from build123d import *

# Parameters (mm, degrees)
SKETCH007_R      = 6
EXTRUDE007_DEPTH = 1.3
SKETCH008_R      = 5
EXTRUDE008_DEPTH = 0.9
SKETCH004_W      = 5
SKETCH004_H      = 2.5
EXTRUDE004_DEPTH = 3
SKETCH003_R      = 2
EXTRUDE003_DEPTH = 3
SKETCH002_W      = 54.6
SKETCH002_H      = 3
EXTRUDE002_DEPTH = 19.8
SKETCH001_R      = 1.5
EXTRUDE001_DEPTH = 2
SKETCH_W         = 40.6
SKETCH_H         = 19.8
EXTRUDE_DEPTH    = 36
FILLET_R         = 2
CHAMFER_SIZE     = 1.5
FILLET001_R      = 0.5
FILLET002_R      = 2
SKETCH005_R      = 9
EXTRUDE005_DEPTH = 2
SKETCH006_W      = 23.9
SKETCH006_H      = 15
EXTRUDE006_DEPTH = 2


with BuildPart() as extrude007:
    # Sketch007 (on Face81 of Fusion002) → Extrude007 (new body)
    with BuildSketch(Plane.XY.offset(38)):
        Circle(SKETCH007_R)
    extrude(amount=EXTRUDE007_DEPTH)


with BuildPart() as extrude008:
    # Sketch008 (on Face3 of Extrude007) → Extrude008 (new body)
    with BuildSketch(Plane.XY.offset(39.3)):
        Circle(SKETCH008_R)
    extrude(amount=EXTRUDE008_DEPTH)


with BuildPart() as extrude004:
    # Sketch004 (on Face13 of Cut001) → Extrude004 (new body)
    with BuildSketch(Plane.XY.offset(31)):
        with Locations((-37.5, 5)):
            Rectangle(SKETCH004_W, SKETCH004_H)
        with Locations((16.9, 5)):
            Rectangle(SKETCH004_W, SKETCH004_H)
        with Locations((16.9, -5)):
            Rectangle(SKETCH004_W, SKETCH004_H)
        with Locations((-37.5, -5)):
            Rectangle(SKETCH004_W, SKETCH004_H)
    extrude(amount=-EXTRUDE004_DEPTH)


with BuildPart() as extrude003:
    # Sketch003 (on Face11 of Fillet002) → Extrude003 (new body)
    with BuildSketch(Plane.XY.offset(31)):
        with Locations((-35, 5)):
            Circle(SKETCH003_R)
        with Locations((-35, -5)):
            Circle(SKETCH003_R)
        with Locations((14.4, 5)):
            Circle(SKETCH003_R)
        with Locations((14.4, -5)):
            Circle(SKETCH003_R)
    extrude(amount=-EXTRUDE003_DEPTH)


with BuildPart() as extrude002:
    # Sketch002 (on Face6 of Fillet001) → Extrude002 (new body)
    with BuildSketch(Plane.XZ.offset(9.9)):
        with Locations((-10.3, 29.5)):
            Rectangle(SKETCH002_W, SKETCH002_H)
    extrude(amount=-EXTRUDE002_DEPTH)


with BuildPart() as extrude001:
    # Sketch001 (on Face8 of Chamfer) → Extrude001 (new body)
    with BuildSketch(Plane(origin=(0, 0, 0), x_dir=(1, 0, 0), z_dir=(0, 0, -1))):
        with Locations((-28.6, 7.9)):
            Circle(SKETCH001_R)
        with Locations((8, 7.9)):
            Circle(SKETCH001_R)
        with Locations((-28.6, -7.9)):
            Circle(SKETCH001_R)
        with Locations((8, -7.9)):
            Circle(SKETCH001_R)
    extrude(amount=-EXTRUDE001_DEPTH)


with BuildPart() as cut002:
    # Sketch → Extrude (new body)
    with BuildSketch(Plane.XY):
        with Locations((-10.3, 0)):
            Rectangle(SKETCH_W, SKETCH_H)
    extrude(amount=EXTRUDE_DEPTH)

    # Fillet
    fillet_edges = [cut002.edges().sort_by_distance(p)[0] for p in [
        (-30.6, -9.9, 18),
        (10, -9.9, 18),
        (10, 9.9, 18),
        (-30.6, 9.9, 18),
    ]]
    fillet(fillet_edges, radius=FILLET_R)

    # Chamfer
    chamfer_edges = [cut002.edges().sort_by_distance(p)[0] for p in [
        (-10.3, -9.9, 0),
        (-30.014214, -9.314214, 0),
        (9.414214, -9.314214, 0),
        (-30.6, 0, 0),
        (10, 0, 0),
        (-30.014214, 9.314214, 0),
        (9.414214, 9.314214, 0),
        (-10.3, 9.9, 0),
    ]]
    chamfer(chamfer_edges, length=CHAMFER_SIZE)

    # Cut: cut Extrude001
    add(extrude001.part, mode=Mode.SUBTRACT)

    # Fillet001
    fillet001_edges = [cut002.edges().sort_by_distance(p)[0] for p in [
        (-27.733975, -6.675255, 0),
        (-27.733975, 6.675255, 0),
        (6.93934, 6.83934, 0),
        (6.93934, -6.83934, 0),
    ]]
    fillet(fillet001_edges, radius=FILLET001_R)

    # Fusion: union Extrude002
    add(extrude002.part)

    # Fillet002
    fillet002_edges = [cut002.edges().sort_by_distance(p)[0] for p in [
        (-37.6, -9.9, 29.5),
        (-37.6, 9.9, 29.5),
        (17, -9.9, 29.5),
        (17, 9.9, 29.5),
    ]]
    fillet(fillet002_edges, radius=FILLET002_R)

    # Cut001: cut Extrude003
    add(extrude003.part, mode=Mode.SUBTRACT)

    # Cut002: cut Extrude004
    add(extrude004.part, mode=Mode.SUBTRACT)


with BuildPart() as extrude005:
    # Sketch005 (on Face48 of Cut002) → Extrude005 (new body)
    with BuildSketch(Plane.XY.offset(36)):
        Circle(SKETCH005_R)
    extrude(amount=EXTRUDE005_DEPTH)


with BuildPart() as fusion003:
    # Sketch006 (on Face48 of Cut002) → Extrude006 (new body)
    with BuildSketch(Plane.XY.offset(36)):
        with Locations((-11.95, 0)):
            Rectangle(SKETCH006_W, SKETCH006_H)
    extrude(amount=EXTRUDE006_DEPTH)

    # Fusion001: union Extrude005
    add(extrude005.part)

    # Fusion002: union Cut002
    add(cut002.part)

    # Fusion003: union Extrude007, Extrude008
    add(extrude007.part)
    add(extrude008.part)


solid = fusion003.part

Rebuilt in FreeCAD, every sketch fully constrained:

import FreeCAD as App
import Part
import Sketcher


def edges_at(feature, points):
    """Names of the edges that pass closest to the given points."""
    edges = feature.Shape.Edges
    near = lambda p: min(range(len(edges)), key=lambda i: edges[i].distToShape(Part.Vertex(*p))[0])
    return sorted({f"Edge{near(p) + 1}" for p in points})

doc = App.newDocument("Part")
params = doc.addObject("Spreadsheet::Sheet", "Params")
for row, (alias, value) in enumerate([
    ("sketch1_diameter", "12 mm"),
    ("pad1_length", "1.3 mm"),
    ("sketch2_diameter", "10 mm"),
    ("pad2_length", "0.9 mm"),
    ("sketch3_width", "5 mm"),
    ("sketch3_height", "2.5 mm"),
    ("pad3_length", "3 mm"),
    ("sketch4_diameter", "4 mm"),
    ("pad4_length", "3 mm"),
    ("sketch5_height", "3 mm"),
    ("sketch5_width", "54.6 mm"),
    ("pad5_length", "19.8 mm"),
    ("sketch6_diameter", "3 mm"),
    ("pad6_length", "2 mm"),
    ("sketch7_width", "40.6 mm"),
    ("sketch7_height", "19.8 mm"),
    ("pad7_length", "36 mm"),
    ("fillet_radius", "2 mm"),
    ("chamfer_size", "1.5 mm"),
    ("fillet2_radius", "0.5 mm"),
    ("fillet3_radius", "2 mm"),
    ("sketch8_diameter", "18 mm"),
    ("pad8_length", "2 mm"),
    ("sketch9_height", "15 mm"),
    ("sketch9_width", "23.9 mm"),
    ("pad9_length", "2 mm"),
], start=1):
    params.set(f"A{row}", alias)
    params.set(f"B{row}", "=" + value)
    params.setAlias(f"B{row}", alias)

body = doc.addObject("PartDesign::Body", "Body")

sketch1 = doc.addObject("Sketcher::SketchObject", "Sketch")
body.addObject(sketch1)
sketch1.AttachmentSupport = (doc.XY_Plane, [""])
sketch1.MapMode = "FlatFace"
sketch1.AttachmentOffset = App.Placement(App.Vector(0, 0, 38), App.Rotation())
sketch1.addGeometry(Part.Circle(App.Vector(0, 0, 0), App.Vector(0, 0, 1), 6), False)
sketch1.addConstraint([
    Sketcher.Constraint("Coincident", 0, 3, -1, 1),
    Sketcher.Constraint("Diameter", 0, 12.0),
])
sketch1.setExpression("Constraints[1]", "Params.sketch1_diameter")
pad1 = doc.addObject("PartDesign::Pad", "Pad")
body.addObject(pad1)
pad1.Profile = sketch1
pad1.setExpression("Length", "Params.pad1_length")
body2 = doc.addObject("PartDesign::Body", "Body001")

sketch2 = doc.addObject("Sketcher::SketchObject", "Sketch001")
body2.addObject(sketch2)
sketch2.AttachmentSupport = (doc.getObject("XY_Plane001"), [""])
sketch2.MapMode = "FlatFace"
sketch2.AttachmentOffset = App.Placement(App.Vector(0, 0, 39.3), App.Rotation())
sketch2.addGeometry(Part.Circle(App.Vector(0, 0, 0), App.Vector(0, 0, 1), 5), False)
sketch2.addConstraint([
    Sketcher.Constraint("Coincident", 0, 3, -1, 1),
    Sketcher.Constraint("Diameter", 0, 10.0),
])
sketch2.setExpression("Constraints[1]", "Params.sketch2_diameter")
pad2 = doc.addObject("PartDesign::Pad", "Pad001")
body2.addObject(pad2)
pad2.Profile = sketch2
pad2.setExpression("Length", "Params.pad2_length")
body3 = doc.addObject("PartDesign::Body", "Body002")
body3.AllowCompound = True

sketch3 = doc.addObject("Sketcher::SketchObject", "Sketch002")
body3.addObject(sketch3)
sketch3.AttachmentSupport = (doc.getObject("XY_Plane002"), [""])
sketch3.MapMode = "FlatFace"
sketch3.AttachmentOffset = App.Placement(App.Vector(0, 0, 31), App.Rotation())
sketch3.addGeometry([
    Part.LineSegment(App.Vector(-40, 6.25, 0), App.Vector(-40, 3.75, 0)),
    Part.LineSegment(App.Vector(-40, 3.75, 0), App.Vector(-35, 3.75, 0)),
    Part.LineSegment(App.Vector(-35, 3.75, 0), App.Vector(-35, 6.25, 0)),
    Part.LineSegment(App.Vector(-35, 6.25, 0), App.Vector(-40, 6.25, 0)),
    Part.LineSegment(App.Vector(14.4, 6.25, 0), App.Vector(14.4, 3.75, 0)),
    Part.LineSegment(App.Vector(14.4, 3.75, 0), App.Vector(19.4, 3.75, 0)),
    Part.LineSegment(App.Vector(19.4, 3.75, 0), App.Vector(19.4, 6.25, 0)),
    Part.LineSegment(App.Vector(19.4, 6.25, 0), App.Vector(14.4, 6.25, 0)),
    Part.LineSegment(App.Vector(14.4, -3.75, 0), App.Vector(14.4, -6.25, 0)),
    Part.LineSegment(App.Vector(14.4, -6.25, 0), App.Vector(19.4, -6.25, 0)),
    Part.LineSegment(App.Vector(19.4, -6.25, 0), App.Vector(19.4, -3.75, 0)),
    Part.LineSegment(App.Vector(19.4, -3.75, 0), App.Vector(14.4, -3.75, 0)),
    Part.LineSegment(App.Vector(-40, -3.75, 0), App.Vector(-40, -6.25, 0)),
    Part.LineSegment(App.Vector(-40, -6.25, 0), App.Vector(-35, -6.25, 0)),
    Part.LineSegment(App.Vector(-35, -6.25, 0), App.Vector(-35, -3.75, 0)),
    Part.LineSegment(App.Vector(-35, -3.75, 0), App.Vector(-40, -3.75, 0)),
], False)
sketch3.addConstraint([
    Sketcher.Constraint("Coincident", 0, 2, 1, 1),
    Sketcher.Constraint("Coincident", 1, 2, 2, 1),
    Sketcher.Constraint("Coincident", 2, 2, 3, 1),
    Sketcher.Constraint("Coincident", 3, 2, 0, 1),
    Sketcher.Constraint("Coincident", 4, 2, 5, 1),
    Sketcher.Constraint("Coincident", 5, 2, 6, 1),
    Sketcher.Constraint("Coincident", 6, 2, 7, 1),
    Sketcher.Constraint("Coincident", 7, 2, 4, 1),
    Sketcher.Constraint("Coincident", 8, 2, 9, 1),
    Sketcher.Constraint("Coincident", 9, 2, 10, 1),
    Sketcher.Constraint("Coincident", 10, 2, 11, 1),
    Sketcher.Constraint("Coincident", 11, 2, 8, 1),
    Sketcher.Constraint("Coincident", 12, 2, 13, 1),
    Sketcher.Constraint("Coincident", 13, 2, 14, 1),
    Sketcher.Constraint("Coincident", 14, 2, 15, 1),
    Sketcher.Constraint("Coincident", 15, 2, 12, 1),
    Sketcher.Constraint("Vertical", 0),
    Sketcher.Constraint("Horizontal", 1),
    Sketcher.Constraint("Vertical", 2),
    Sketcher.Constraint("Horizontal", 3),
    Sketcher.Constraint("Vertical", 4),
    Sketcher.Constraint("Horizontal", 5),
    Sketcher.Constraint("Vertical", 6),
    Sketcher.Constraint("Horizontal", 7),
    Sketcher.Constraint("Vertical", 8),
    Sketcher.Constraint("Horizontal", 9),
    Sketcher.Constraint("Vertical", 10),
    Sketcher.Constraint("Horizontal", 11),
    Sketcher.Constraint("Vertical", 12),
    Sketcher.Constraint("Horizontal", 13),
    Sketcher.Constraint("Vertical", 14),
    Sketcher.Constraint("Horizontal", 15),
    Sketcher.Constraint("Symmetric", 7, 2, 8, 2, -1),
    Sketcher.Constraint("Symmetric", 5, 2, 10, 2, -1),
    Sketcher.Constraint("Symmetric", 3, 2, 12, 2, -1),
    Sketcher.Constraint("Symmetric", 1, 2, 14, 2, -1),
    Sketcher.Constraint("Horizontal", 1, 2, 4, 2),
    Sketcher.Constraint("Horizontal", 3, 2, 6, 2),
    Sketcher.Constraint("Equal", 3, 5),
    Sketcher.Constraint("DistanceX", 1, 1, 1, 2, 5.0),
    Sketcher.Constraint("DistanceY", 0, 2, 0, 1, 2.5),
    Sketcher.Constraint("DistanceX", 0, 2, -1, 1, 40.0),
    Sketcher.Constraint("DistanceY", 8, 2, 4, 2, 10.0),
    Sketcher.Constraint("DistanceX", -1, 1, 4, 2, 14.4),
])
sketch3.setExpression("Constraints[39]", "Params.sketch3_width")
sketch3.setExpression("Constraints[40]", "Params.sketch3_height")
pad3 = doc.addObject("PartDesign::Pad", "Pad002")
body3.addObject(pad3)
pad3.Profile = sketch3
pad3.setExpression("Length", "Params.pad3_length")
pad3.Reversed = True
body4 = doc.addObject("PartDesign::Body", "Body003")
body4.AllowCompound = True

sketch4 = doc.addObject("Sketcher::SketchObject", "Sketch003")
body4.addObject(sketch4)
sketch4.AttachmentSupport = (doc.getObject("XY_Plane003"), [""])
sketch4.MapMode = "FlatFace"
sketch4.AttachmentOffset = App.Placement(App.Vector(0, 0, 31), App.Rotation())
sketch4.addGeometry([
    Part.Circle(App.Vector(-35, 5, 0), App.Vector(0, 0, 1), 2),
    Part.Circle(App.Vector(-35, -5, 0), App.Vector(0, 0, 1), 2),
    Part.Circle(App.Vector(14.4, 5, 0), App.Vector(0, 0, 1), 2),
    Part.Circle(App.Vector(14.4, -5, 0), App.Vector(0, 0, 1), 2),
], False)
sketch4.addConstraint([
    Sketcher.Constraint("Equal", 0, 1),
    Sketcher.Constraint("Equal", 1, 2),
    Sketcher.Constraint("Equal", 2, 3),
    Sketcher.Constraint("Symmetric", 0, 3, 1, 3, -1),
    Sketcher.Constraint("Symmetric", 2, 3, 3, 3, -1),
    Sketcher.Constraint("Horizontal", 0, 3, 2, 3),
    Sketcher.Constraint("Diameter", 0, 4.0),
    Sketcher.Constraint("DistanceX", 0, 3, -1, 1, 35.0),
    Sketcher.Constraint("DistanceY", -1, 1, 0, 3, 5.0),
    Sketcher.Constraint("DistanceX", -1, 1, 2, 3, 14.4),
])
sketch4.setExpression("Constraints[6]", "Params.sketch4_diameter")
pad4 = doc.addObject("PartDesign::Pad", "Pad003")
body4.addObject(pad4)
pad4.Profile = sketch4
pad4.setExpression("Length", "Params.pad4_length")
pad4.Reversed = True
body5 = doc.addObject("PartDesign::Body", "Body004")

sketch5 = doc.addObject("Sketcher::SketchObject", "Sketch004")
body5.addObject(sketch5)
sketch5.AttachmentSupport = (doc.getObject("XZ_Plane004"), [""])
sketch5.MapMode = "FlatFace"
sketch5.AttachmentOffset = App.Placement(App.Vector(0, 0, 9.9), App.Rotation())
sketch5.addGeometry([
    Part.LineSegment(App.Vector(-37.6, 31, 0), App.Vector(-37.6, 28, 0)),
    Part.LineSegment(App.Vector(-37.6, 28, 0), App.Vector(17, 28, 0)),
    Part.LineSegment(App.Vector(17, 28, 0), App.Vector(17, 31, 0)),
    Part.LineSegment(App.Vector(17, 31, 0), App.Vector(-37.6, 31, 0)),
], False)
sketch5.addConstraint([
    Sketcher.Constraint("Coincident", 0, 2, 1, 1),
    Sketcher.Constraint("Coincident", 1, 2, 2, 1),
    Sketcher.Constraint("Coincident", 2, 2, 3, 1),
    Sketcher.Constraint("Coincident", 3, 2, 0, 1),
    Sketcher.Constraint("Vertical", 0),
    Sketcher.Constraint("Horizontal", 1),
    Sketcher.Constraint("Vertical", 2),
    Sketcher.Constraint("Horizontal", 3),
    Sketcher.Constraint("DistanceY", 0, 2, 0, 1, 3.0),
    Sketcher.Constraint("DistanceX", 1, 1, 1, 2, 54.6),
    Sketcher.Constraint("DistanceY", -1, 1, 0, 2, 28.0),
    Sketcher.Constraint("DistanceX", -1, 1, 1, 2, 17.0),
])
sketch5.setExpression("Constraints[8]", "Params.sketch5_height")
sketch5.setExpression("Constraints[9]", "Params.sketch5_width")
pad5 = doc.addObject("PartDesign::Pad", "Pad004")
body5.addObject(pad5)
pad5.Profile = sketch5
pad5.setExpression("Length", "Params.pad5_length")
pad5.Reversed = True
body6 = doc.addObject("PartDesign::Body", "Body005")
body6.AllowCompound = True

sketch6 = doc.addObject("Sketcher::SketchObject", "Sketch005")
body6.addObject(sketch6)
sketch6.AttachmentSupport = (doc.getObject("XY_Plane005"), [""])
sketch6.MapMode = "FlatFace"
sketch6.addGeometry([
    Part.Circle(App.Vector(-28.6, -7.9, 0), App.Vector(0, 0, 1), 1.5),
    Part.Circle(App.Vector(8, -7.9, 0), App.Vector(0, 0, 1), 1.5),
    Part.Circle(App.Vector(-28.6, 7.9, 0), App.Vector(0, 0, 1), 1.5),
    Part.Circle(App.Vector(8, 7.9, 0), App.Vector(0, 0, 1), 1.5),
], False)
sketch6.addConstraint([
    Sketcher.Constraint("Equal", 0, 1),
    Sketcher.Constraint("Equal", 1, 2),
    Sketcher.Constraint("Equal", 2, 3),
    Sketcher.Constraint("Symmetric", 0, 3, 2, 3, -1),
    Sketcher.Constraint("Symmetric", 1, 3, 3, 3, -1),
    Sketcher.Constraint("Horizontal", 0, 3, 1, 3),
    Sketcher.Constraint("Diameter", 0, 3.0),
    Sketcher.Constraint("DistanceX", -1, 1, 1, 3, 8.0),
    Sketcher.Constraint("DistanceX", 0, 3, -1, 1, 28.6),
    Sketcher.Constraint("DistanceY", 0, 3, -1, 1, 7.9),
])
sketch6.setExpression("Constraints[6]", "Params.sketch6_diameter")
pad6 = doc.addObject("PartDesign::Pad", "Pad005")
body6.addObject(pad6)
pad6.Profile = sketch6
pad6.setExpression("Length", "Params.pad6_length")
body7 = doc.addObject("PartDesign::Body", "Body006")

sketch7 = doc.addObject("Sketcher::SketchObject", "Sketch006")
body7.addObject(sketch7)
sketch7.AttachmentSupport = (doc.getObject("XY_Plane006"), [""])
sketch7.MapMode = "FlatFace"
sketch7.addGeometry([
    Part.LineSegment(App.Vector(-30.6, 9.9, 0), App.Vector(-30.6, -9.9, 0)),
    Part.LineSegment(App.Vector(-30.6, -9.9, 0), App.Vector(10, -9.9, 0)),
    Part.LineSegment(App.Vector(10, -9.9, 0), App.Vector(10, 9.9, 0)),
    Part.LineSegment(App.Vector(10, 9.9, 0), App.Vector(-30.6, 9.9, 0)),
], False)
sketch7.addConstraint([
    Sketcher.Constraint("Coincident", 0, 2, 1, 1),
    Sketcher.Constraint("Coincident", 1, 2, 2, 1),
    Sketcher.Constraint("Coincident", 2, 2, 3, 1),
    Sketcher.Constraint("Coincident", 3, 2, 0, 1),
    Sketcher.Constraint("Vertical", 0),
    Sketcher.Constraint("Horizontal", 1),
    Sketcher.Constraint("Vertical", 2),
    Sketcher.Constraint("Horizontal", 3),
    Sketcher.Constraint("DistanceX", 1, 1, 1, 2, 40.6),
    Sketcher.Constraint("DistanceY", 0, 2, 0, 1, 19.8),
    Sketcher.Constraint("DistanceX", -1, 1, 1, 2, 10.0),
    Sketcher.Constraint("DistanceY", 0, 2, -1, 1, 9.9),
])
sketch7.setExpression("Constraints[8]", "Params.sketch7_width")
sketch7.setExpression("Constraints[9]", "Params.sketch7_height")
pad7 = doc.addObject("PartDesign::Pad", "Pad006")
body7.addObject(pad7)
pad7.Profile = sketch7
pad7.setExpression("Length", "Params.pad7_length")
doc.recompute()

fillet = doc.addObject("PartDesign::Fillet", "Fillet")
body7.addObject(fillet)
fillet.Base = (pad7, edges_at(pad7, [
    (-30.6, -9.9, 18),
    (10, -9.9, 18),
    (10, 9.9, 18),
    (-30.6, 9.9, 18),
]))
fillet.setExpression("Radius", "Params.fillet_radius")
doc.recompute()

chamfer = doc.addObject("PartDesign::Chamfer", "Chamfer")
body7.addObject(chamfer)
chamfer.Base = (fillet, edges_at(fillet, [
    (-10.3, -9.9, 0),
    (-30.014, -9.314, 0),
    (9.414, -9.314, 0),
    (-30.6, 0, 0),
    (10, 0, 0),
    (-30.014, 9.314, 0),
    (9.414, 9.314, 0),
    (-10.3, 9.9, 0),
]))
chamfer.setExpression("Size", "Params.chamfer_size")
doc.recompute()

boolean = doc.addObject("PartDesign::Boolean", "Boolean")
body7.addObject(boolean)
boolean.Type = "Cut"
boolean.addObjects([body6])
doc.recompute()

fillet2 = doc.addObject("PartDesign::Fillet", "Fillet001")
body7.addObject(fillet2)
fillet2.Base = (boolean, edges_at(boolean, [
    (-27.734, -6.675, 0),
    (-27.734, 6.675, 0),
    (6.939, 6.839, 0),
    (6.939, -6.839, 0),
]))
fillet2.setExpression("Radius", "Params.fillet2_radius")
doc.recompute()

boolean2 = doc.addObject("PartDesign::Boolean", "Boolean001")
body7.addObject(boolean2)
boolean2.Type = "Fuse"
boolean2.addObjects([body5])
doc.recompute()

fillet3 = doc.addObject("PartDesign::Fillet", "Fillet002")
body7.addObject(fillet3)
fillet3.Base = (boolean2, edges_at(boolean2, [
    (-37.6, -9.9, 29.5),
    (-37.6, 9.9, 29.5),
    (17, -9.9, 29.5),
    (17, 9.9, 29.5),
]))
fillet3.setExpression("Radius", "Params.fillet3_radius")
doc.recompute()

boolean3 = doc.addObject("PartDesign::Boolean", "Boolean002")
body7.addObject(boolean3)
boolean3.Type = "Cut"
boolean3.addObjects([body4])
doc.recompute()

boolean4 = doc.addObject("PartDesign::Boolean", "Boolean003")
body7.addObject(boolean4)
boolean4.Type = "Cut"
boolean4.addObjects([body3])
body8 = doc.addObject("PartDesign::Body", "Body007")

sketch8 = doc.addObject("Sketcher::SketchObject", "Sketch007")
body8.addObject(sketch8)
sketch8.AttachmentSupport = (doc.getObject("XY_Plane007"), [""])
sketch8.MapMode = "FlatFace"
sketch8.AttachmentOffset = App.Placement(App.Vector(0, 0, 36), App.Rotation())
sketch8.addGeometry(Part.Circle(App.Vector(0, 0, 0), App.Vector(0, 0, 1), 9), False)
sketch8.addConstraint([
    Sketcher.Constraint("Coincident", 0, 3, -1, 1),
    Sketcher.Constraint("Diameter", 0, 18.0),
])
sketch8.setExpression("Constraints[1]", "Params.sketch8_diameter")
pad8 = doc.addObject("PartDesign::Pad", "Pad007")
body8.addObject(pad8)
pad8.Profile = sketch8
pad8.setExpression("Length", "Params.pad8_length")
body9 = doc.addObject("PartDesign::Body", "Body008")

sketch9 = doc.addObject("Sketcher::SketchObject", "Sketch008")
body9.addObject(sketch9)
sketch9.AttachmentSupport = (doc.getObject("XY_Plane008"), [""])
sketch9.MapMode = "FlatFace"
sketch9.AttachmentOffset = App.Placement(App.Vector(0, 0, 36), App.Rotation())
sketch9.addGeometry([
    Part.LineSegment(App.Vector(-23.9, 7.5, 0), App.Vector(-23.9, -7.5, 0)),
    Part.LineSegment(App.Vector(-23.9, -7.5, 0), App.Vector(0, -7.5, 0)),
    Part.LineSegment(App.Vector(0, -7.5, 0), App.Vector(0, 7.5, 0)),
    Part.LineSegment(App.Vector(0, 7.5, 0), App.Vector(-23.9, 7.5, 0)),
], False)
sketch9.addConstraint([
    Sketcher.Constraint("Coincident", 0, 2, 1, 1),
    Sketcher.Constraint("Coincident", 1, 2, 2, 1),
    Sketcher.Constraint("Coincident", 2, 2, 3, 1),
    Sketcher.Constraint("Coincident", 3, 2, 0, 1),
    Sketcher.Constraint("Vertical", 0),
    Sketcher.Constraint("Horizontal", 1),
    Sketcher.Constraint("Vertical", 2),
    Sketcher.Constraint("Horizontal", 3),
    Sketcher.Constraint("Symmetric", 1, 2, 2, 2, -1, 1),
    Sketcher.Constraint("DistanceY", 0, 2, 0, 1, 15.0),
    Sketcher.Constraint("DistanceX", 1, 1, 1, 2, 23.9),
])
sketch9.setExpression("Constraints[9]", "Params.sketch9_height")
sketch9.setExpression("Constraints[10]", "Params.sketch9_width")
pad9 = doc.addObject("PartDesign::Pad", "Pad008")
body9.addObject(pad9)
pad9.Profile = sketch9
pad9.setExpression("Length", "Params.pad9_length")
doc.recompute()

boolean5 = doc.addObject("PartDesign::Boolean", "Boolean004")
body9.addObject(boolean5)
boolean5.Type = "Fuse"
boolean5.addObjects([body8])
doc.recompute()

boolean6 = doc.addObject("PartDesign::Boolean", "Boolean005")
body9.addObject(boolean6)
boolean6.Type = "Fuse"
boolean6.addObjects([body7])
doc.recompute()

boolean7 = doc.addObject("PartDesign::Boolean", "Boolean006")
body9.addObject(boolean7)
boolean7.Type = "Fuse"
boolean7.addObjects([body])
doc.recompute()

boolean8 = doc.addObject("PartDesign::Boolean", "Boolean007")
body9.addObject(boolean8)
boolean8.Type = "Fuse"
boolean8.addObjects([body2])

doc.recompute()
